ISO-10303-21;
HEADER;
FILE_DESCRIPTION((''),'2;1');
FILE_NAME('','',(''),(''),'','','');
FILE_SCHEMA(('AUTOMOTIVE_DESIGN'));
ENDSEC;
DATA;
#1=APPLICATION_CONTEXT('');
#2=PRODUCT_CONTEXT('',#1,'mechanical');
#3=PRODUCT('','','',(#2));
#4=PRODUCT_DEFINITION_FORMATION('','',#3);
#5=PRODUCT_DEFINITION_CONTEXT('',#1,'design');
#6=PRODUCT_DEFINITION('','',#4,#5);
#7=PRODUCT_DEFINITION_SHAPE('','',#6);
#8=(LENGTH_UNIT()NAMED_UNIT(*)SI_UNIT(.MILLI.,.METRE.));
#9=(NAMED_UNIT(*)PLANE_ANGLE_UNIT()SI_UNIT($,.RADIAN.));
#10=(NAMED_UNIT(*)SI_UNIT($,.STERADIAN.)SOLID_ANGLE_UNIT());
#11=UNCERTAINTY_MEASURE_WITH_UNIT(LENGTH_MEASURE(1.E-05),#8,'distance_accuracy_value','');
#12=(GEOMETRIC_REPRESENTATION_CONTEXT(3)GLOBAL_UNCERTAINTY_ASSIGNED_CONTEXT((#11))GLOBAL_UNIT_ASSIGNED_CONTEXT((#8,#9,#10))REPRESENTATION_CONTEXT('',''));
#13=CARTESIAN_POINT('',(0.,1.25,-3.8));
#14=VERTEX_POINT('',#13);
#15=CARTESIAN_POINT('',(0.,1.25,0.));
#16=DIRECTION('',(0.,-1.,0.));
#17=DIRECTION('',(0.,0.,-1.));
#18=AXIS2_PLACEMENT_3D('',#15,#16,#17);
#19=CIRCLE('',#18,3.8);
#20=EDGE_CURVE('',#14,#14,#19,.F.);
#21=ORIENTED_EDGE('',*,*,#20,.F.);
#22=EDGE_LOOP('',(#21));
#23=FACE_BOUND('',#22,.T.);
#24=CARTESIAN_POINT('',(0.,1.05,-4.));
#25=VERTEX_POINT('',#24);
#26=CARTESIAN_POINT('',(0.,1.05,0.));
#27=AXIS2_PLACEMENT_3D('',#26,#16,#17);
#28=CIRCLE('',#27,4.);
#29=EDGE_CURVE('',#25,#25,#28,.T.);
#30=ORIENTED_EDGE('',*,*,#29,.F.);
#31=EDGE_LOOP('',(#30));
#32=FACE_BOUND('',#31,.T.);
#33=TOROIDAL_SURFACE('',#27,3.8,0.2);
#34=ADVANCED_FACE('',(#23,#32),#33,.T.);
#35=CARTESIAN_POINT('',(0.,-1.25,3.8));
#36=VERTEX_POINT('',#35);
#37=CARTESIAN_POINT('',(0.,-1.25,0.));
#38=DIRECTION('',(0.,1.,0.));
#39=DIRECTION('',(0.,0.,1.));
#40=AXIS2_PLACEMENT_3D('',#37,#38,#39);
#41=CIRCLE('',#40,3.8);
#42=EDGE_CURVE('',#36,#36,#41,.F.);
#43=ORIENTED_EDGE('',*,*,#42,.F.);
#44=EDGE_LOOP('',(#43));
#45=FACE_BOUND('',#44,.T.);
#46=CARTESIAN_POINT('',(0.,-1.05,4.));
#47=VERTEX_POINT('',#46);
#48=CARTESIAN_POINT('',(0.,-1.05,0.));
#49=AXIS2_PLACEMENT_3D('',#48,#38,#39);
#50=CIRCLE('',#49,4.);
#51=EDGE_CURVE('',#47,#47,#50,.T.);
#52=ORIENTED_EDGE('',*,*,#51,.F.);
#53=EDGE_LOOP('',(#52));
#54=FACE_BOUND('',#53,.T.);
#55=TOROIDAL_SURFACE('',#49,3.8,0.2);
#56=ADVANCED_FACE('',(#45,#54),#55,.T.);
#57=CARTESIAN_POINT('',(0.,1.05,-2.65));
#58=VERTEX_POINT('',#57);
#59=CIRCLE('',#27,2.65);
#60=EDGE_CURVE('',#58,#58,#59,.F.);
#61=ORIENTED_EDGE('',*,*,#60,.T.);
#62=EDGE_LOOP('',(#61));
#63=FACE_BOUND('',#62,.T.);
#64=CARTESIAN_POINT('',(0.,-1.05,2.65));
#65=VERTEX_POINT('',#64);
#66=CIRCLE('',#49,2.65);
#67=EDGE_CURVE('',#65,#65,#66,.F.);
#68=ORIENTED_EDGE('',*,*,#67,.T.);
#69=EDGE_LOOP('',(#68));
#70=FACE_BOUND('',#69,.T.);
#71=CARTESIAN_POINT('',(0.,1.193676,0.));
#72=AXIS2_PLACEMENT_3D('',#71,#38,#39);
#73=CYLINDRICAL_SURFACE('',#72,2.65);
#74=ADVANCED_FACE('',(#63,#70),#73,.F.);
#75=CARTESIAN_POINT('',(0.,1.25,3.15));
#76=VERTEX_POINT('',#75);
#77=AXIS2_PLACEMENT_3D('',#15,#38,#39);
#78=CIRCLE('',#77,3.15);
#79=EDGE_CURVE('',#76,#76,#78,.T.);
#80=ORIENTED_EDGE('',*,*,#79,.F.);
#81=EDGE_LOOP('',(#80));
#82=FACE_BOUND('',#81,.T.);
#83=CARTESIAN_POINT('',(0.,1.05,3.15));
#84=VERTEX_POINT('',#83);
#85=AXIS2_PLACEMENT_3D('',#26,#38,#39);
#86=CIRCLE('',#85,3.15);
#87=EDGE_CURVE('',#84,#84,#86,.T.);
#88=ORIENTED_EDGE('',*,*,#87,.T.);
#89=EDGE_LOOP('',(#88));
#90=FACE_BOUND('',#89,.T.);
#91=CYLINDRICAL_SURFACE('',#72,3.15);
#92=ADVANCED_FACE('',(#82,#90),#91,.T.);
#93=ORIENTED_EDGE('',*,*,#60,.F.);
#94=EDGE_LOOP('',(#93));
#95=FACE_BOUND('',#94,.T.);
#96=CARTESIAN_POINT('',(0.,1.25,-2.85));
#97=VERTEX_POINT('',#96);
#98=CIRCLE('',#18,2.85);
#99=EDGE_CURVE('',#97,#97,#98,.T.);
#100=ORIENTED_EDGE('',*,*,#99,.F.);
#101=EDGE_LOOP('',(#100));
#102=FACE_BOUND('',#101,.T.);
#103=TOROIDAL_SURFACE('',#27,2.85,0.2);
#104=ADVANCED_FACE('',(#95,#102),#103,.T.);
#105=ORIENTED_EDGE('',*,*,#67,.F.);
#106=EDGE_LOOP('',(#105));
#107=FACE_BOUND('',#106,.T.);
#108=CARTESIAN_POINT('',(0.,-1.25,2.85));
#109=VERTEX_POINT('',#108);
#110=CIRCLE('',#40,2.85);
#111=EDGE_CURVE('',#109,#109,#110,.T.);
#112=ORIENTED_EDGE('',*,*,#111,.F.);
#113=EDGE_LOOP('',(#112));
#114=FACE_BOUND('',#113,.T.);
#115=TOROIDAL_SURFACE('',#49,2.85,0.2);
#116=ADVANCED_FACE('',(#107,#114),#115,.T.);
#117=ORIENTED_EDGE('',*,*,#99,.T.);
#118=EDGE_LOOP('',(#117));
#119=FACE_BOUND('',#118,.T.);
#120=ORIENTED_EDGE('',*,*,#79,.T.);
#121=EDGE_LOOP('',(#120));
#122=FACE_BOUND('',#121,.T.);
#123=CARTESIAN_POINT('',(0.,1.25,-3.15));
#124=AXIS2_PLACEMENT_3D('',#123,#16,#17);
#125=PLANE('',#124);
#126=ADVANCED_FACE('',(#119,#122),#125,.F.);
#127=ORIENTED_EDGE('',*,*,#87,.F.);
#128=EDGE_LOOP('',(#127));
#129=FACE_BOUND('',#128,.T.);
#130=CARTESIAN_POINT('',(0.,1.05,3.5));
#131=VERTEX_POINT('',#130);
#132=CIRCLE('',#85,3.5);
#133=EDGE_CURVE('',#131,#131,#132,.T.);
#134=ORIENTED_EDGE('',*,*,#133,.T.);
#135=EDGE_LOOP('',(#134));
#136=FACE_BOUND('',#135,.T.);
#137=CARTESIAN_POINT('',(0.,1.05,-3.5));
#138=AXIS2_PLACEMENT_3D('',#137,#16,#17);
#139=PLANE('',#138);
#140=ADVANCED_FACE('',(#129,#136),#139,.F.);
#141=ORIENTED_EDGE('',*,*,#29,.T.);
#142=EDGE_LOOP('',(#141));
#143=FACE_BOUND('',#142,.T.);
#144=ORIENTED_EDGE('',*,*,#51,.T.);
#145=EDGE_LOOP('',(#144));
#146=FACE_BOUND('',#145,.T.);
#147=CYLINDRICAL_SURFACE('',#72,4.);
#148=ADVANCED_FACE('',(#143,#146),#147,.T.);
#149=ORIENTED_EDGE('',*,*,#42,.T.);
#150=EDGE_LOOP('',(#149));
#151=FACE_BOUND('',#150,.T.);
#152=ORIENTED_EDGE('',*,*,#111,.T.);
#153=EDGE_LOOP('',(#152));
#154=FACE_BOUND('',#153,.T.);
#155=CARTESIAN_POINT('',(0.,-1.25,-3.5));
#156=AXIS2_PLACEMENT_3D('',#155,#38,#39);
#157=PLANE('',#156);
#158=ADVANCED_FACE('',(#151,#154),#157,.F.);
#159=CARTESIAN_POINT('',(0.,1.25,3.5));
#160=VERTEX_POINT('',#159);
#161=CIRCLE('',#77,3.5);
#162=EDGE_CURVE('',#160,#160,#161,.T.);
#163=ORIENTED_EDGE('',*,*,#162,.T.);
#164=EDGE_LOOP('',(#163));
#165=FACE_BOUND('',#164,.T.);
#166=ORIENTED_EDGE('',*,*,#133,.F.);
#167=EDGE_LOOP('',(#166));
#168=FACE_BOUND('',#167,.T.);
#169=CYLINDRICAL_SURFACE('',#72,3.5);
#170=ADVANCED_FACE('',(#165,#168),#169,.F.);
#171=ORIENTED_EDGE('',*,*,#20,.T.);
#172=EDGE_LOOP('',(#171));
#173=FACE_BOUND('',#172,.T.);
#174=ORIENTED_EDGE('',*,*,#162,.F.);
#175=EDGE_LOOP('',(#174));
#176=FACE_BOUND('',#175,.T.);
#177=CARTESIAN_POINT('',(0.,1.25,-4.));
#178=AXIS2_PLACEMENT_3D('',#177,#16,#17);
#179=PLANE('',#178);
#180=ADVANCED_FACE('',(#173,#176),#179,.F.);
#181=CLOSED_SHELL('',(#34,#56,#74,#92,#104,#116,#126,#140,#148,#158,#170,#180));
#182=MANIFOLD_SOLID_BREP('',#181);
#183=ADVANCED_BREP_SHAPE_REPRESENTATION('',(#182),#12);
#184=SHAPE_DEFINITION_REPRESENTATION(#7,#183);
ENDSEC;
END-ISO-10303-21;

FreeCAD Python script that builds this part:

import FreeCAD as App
import Part
import Sketcher

V = App.Vector


def edges_at(feature, points):
    """Names of the edges that pass closest to the given points."""
    edges = feature.Shape.Edges
    near = lambda p: min(range(len(edges)), key=lambda i: edges[i].distToShape(Part.Vertex(*p))[0])
    return sorted({f"Edge{near(p) + 1}" for p in points})


def add_polygon(sketch, points):
    """Adds a closed chain of lines whose ends are joined by coincident constraints."""
    first, n = sketch.GeometryCount, len(points)
    for a, b in zip(points, points[1:] + points[:1]):
        sketch.addGeometry(Part.LineSegment(App.Vector(*a, 0), App.Vector(*b, 0)), False)
    for i in range(n):
        sketch.addConstraint(Sketcher.Constraint("Coincident", first + i, 2, first + (i + 1) % n, 1))

doc = App.newDocument("Part")
body = doc.addObject("PartDesign::Body", "Body")

# Sketch on YZ plane
sketch1 = doc.addObject("Sketcher::SketchObject", "Sketch")
body.addObject(sketch1)
sketch1.AttachmentSupport = (doc.YZ_Plane, [""])
sketch1.MapMode = "FlatFace"
add_polygon(sketch1, [(1.25, -2.65), (-1.25, -2.65), (-1.25, -3.15), (-1.05, -3.15), (-1.05, -3.5), (-1.25, -3.5), (-1.25, -4), (1.25, -4), (1.25, -3.5), (1.05, -3.5), (1.05, -3.15), (1.25, -3.15)])  # lines 0-11
sketch1.addConstraint(Sketcher.Constraint("Horizontal", 0))
sketch1.addConstraint(Sketcher.Constraint("Vertical", 1))
sketch1.addConstraint(Sketcher.Constraint("Horizontal", 2))
sketch1.addConstraint(Sketcher.Constraint("Vertical", 3))
sketch1.addConstraint(Sketcher.Constraint("Horizontal", 4))
sketch1.addConstraint(Sketcher.Constraint("Vertical", 5))
sketch1.addConstraint(Sketcher.Constraint("Horizontal", 6))
sketch1.addConstraint(Sketcher.Constraint("Vertical", 7))
sketch1.addConstraint(Sketcher.Constraint("Horizontal", 8))
sketch1.addConstraint(Sketcher.Constraint("Vertical", 9))
sketch1.addConstraint(Sketcher.Constraint("Horizontal", 10))
sketch1.addConstraint(Sketcher.Constraint("Vertical", 11))
sketch1.addConstraint(Sketcher.Constraint("Symmetric", 4, 2, 7, 2, -2))
sketch1.addConstraint(Sketcher.Constraint("Symmetric", 2, 2, 9, 2, -2))
sketch1.addConstraint(Sketcher.Constraint("Vertical", 1, 2, 4, 2))
sketch1.addConstraint(Sketcher.Constraint("Vertical", 7, 2, 10, 2))
sketch1.addConstraint(Sketcher.Constraint("Equal", 1, 5))
sketch1.addConstraint(Sketcher.Constraint("DistanceX", 0, 2, 0, 1, 2.5))
sketch1.addConstraint(Sketcher.Constraint("DistanceX", 2, 1, 2, 2, 0.2))
sketch1.addConstraint(Sketcher.Constraint("DistanceY", 1, 2, 1, 1, 0.5))
sketch1.addConstraint(Sketcher.Constraint("DistanceY", 5, 2, -1, 1, 4.0))
sketch1.addConstraint(Sketcher.Constraint("DistanceY", 3, 2, 3, 1, 0.35))
revolution = doc.addObject("PartDesign::Revolution", "Revolution")
body.addObject(revolution)
revolution.Profile = sketch1
revolution.ReferenceAxis = (sketch1, ["H_Axis"])
revolution.Angle = 360
doc.recompute()

fillet = doc.addObject("PartDesign::Fillet", "Fillet")
body.addObject(fillet)
fillet.Base = (revolution, edges_at(revolution, [
    (0, 1.25, -4),
    (0, -1.25, -4),
    (0, -1.25, -2.65),
    (0, 1.25, -2.65),
]))
fillet.Radius = 0.2

# Sketch on XZ plane
sketch2 = doc.addObject("Sketcher::SketchObject", "Sketch001")
body.addObject(sketch2)
sketch2.AttachmentSupport = (doc.XZ_Plane, [""])
sketch2.MapMode = "FlatFace"
sketch2.AttachmentOffset = App.Placement(V(0, 0, 1.05), App.Rotation())
sketch2.addGeometry(Part.Circle(V(0, 0, 0), V(0, 0, 1), 3.5), False)
sketch2.addGeometry(Part.Circle(V(0, 0, 0), V(0, 0, 1), 3.15), False)
sketch2.addConstraint(Sketcher.Constraint("Coincident", 0, 3, -1, 1))
sketch2.addConstraint(Sketcher.Constraint("Coincident", 1, 3, -1, 1))
sketch2.addConstraint(Sketcher.Constraint("Diameter", 0, 7.0))
sketch2.addConstraint(Sketcher.Constraint("Diameter", 1, 6.3))
pad1 = doc.addObject("PartDesign::Pad", "Pad")
body.addObject(pad1)
pad1.Profile = sketch2
pad1.Length = 0.2

doc.recompute()
